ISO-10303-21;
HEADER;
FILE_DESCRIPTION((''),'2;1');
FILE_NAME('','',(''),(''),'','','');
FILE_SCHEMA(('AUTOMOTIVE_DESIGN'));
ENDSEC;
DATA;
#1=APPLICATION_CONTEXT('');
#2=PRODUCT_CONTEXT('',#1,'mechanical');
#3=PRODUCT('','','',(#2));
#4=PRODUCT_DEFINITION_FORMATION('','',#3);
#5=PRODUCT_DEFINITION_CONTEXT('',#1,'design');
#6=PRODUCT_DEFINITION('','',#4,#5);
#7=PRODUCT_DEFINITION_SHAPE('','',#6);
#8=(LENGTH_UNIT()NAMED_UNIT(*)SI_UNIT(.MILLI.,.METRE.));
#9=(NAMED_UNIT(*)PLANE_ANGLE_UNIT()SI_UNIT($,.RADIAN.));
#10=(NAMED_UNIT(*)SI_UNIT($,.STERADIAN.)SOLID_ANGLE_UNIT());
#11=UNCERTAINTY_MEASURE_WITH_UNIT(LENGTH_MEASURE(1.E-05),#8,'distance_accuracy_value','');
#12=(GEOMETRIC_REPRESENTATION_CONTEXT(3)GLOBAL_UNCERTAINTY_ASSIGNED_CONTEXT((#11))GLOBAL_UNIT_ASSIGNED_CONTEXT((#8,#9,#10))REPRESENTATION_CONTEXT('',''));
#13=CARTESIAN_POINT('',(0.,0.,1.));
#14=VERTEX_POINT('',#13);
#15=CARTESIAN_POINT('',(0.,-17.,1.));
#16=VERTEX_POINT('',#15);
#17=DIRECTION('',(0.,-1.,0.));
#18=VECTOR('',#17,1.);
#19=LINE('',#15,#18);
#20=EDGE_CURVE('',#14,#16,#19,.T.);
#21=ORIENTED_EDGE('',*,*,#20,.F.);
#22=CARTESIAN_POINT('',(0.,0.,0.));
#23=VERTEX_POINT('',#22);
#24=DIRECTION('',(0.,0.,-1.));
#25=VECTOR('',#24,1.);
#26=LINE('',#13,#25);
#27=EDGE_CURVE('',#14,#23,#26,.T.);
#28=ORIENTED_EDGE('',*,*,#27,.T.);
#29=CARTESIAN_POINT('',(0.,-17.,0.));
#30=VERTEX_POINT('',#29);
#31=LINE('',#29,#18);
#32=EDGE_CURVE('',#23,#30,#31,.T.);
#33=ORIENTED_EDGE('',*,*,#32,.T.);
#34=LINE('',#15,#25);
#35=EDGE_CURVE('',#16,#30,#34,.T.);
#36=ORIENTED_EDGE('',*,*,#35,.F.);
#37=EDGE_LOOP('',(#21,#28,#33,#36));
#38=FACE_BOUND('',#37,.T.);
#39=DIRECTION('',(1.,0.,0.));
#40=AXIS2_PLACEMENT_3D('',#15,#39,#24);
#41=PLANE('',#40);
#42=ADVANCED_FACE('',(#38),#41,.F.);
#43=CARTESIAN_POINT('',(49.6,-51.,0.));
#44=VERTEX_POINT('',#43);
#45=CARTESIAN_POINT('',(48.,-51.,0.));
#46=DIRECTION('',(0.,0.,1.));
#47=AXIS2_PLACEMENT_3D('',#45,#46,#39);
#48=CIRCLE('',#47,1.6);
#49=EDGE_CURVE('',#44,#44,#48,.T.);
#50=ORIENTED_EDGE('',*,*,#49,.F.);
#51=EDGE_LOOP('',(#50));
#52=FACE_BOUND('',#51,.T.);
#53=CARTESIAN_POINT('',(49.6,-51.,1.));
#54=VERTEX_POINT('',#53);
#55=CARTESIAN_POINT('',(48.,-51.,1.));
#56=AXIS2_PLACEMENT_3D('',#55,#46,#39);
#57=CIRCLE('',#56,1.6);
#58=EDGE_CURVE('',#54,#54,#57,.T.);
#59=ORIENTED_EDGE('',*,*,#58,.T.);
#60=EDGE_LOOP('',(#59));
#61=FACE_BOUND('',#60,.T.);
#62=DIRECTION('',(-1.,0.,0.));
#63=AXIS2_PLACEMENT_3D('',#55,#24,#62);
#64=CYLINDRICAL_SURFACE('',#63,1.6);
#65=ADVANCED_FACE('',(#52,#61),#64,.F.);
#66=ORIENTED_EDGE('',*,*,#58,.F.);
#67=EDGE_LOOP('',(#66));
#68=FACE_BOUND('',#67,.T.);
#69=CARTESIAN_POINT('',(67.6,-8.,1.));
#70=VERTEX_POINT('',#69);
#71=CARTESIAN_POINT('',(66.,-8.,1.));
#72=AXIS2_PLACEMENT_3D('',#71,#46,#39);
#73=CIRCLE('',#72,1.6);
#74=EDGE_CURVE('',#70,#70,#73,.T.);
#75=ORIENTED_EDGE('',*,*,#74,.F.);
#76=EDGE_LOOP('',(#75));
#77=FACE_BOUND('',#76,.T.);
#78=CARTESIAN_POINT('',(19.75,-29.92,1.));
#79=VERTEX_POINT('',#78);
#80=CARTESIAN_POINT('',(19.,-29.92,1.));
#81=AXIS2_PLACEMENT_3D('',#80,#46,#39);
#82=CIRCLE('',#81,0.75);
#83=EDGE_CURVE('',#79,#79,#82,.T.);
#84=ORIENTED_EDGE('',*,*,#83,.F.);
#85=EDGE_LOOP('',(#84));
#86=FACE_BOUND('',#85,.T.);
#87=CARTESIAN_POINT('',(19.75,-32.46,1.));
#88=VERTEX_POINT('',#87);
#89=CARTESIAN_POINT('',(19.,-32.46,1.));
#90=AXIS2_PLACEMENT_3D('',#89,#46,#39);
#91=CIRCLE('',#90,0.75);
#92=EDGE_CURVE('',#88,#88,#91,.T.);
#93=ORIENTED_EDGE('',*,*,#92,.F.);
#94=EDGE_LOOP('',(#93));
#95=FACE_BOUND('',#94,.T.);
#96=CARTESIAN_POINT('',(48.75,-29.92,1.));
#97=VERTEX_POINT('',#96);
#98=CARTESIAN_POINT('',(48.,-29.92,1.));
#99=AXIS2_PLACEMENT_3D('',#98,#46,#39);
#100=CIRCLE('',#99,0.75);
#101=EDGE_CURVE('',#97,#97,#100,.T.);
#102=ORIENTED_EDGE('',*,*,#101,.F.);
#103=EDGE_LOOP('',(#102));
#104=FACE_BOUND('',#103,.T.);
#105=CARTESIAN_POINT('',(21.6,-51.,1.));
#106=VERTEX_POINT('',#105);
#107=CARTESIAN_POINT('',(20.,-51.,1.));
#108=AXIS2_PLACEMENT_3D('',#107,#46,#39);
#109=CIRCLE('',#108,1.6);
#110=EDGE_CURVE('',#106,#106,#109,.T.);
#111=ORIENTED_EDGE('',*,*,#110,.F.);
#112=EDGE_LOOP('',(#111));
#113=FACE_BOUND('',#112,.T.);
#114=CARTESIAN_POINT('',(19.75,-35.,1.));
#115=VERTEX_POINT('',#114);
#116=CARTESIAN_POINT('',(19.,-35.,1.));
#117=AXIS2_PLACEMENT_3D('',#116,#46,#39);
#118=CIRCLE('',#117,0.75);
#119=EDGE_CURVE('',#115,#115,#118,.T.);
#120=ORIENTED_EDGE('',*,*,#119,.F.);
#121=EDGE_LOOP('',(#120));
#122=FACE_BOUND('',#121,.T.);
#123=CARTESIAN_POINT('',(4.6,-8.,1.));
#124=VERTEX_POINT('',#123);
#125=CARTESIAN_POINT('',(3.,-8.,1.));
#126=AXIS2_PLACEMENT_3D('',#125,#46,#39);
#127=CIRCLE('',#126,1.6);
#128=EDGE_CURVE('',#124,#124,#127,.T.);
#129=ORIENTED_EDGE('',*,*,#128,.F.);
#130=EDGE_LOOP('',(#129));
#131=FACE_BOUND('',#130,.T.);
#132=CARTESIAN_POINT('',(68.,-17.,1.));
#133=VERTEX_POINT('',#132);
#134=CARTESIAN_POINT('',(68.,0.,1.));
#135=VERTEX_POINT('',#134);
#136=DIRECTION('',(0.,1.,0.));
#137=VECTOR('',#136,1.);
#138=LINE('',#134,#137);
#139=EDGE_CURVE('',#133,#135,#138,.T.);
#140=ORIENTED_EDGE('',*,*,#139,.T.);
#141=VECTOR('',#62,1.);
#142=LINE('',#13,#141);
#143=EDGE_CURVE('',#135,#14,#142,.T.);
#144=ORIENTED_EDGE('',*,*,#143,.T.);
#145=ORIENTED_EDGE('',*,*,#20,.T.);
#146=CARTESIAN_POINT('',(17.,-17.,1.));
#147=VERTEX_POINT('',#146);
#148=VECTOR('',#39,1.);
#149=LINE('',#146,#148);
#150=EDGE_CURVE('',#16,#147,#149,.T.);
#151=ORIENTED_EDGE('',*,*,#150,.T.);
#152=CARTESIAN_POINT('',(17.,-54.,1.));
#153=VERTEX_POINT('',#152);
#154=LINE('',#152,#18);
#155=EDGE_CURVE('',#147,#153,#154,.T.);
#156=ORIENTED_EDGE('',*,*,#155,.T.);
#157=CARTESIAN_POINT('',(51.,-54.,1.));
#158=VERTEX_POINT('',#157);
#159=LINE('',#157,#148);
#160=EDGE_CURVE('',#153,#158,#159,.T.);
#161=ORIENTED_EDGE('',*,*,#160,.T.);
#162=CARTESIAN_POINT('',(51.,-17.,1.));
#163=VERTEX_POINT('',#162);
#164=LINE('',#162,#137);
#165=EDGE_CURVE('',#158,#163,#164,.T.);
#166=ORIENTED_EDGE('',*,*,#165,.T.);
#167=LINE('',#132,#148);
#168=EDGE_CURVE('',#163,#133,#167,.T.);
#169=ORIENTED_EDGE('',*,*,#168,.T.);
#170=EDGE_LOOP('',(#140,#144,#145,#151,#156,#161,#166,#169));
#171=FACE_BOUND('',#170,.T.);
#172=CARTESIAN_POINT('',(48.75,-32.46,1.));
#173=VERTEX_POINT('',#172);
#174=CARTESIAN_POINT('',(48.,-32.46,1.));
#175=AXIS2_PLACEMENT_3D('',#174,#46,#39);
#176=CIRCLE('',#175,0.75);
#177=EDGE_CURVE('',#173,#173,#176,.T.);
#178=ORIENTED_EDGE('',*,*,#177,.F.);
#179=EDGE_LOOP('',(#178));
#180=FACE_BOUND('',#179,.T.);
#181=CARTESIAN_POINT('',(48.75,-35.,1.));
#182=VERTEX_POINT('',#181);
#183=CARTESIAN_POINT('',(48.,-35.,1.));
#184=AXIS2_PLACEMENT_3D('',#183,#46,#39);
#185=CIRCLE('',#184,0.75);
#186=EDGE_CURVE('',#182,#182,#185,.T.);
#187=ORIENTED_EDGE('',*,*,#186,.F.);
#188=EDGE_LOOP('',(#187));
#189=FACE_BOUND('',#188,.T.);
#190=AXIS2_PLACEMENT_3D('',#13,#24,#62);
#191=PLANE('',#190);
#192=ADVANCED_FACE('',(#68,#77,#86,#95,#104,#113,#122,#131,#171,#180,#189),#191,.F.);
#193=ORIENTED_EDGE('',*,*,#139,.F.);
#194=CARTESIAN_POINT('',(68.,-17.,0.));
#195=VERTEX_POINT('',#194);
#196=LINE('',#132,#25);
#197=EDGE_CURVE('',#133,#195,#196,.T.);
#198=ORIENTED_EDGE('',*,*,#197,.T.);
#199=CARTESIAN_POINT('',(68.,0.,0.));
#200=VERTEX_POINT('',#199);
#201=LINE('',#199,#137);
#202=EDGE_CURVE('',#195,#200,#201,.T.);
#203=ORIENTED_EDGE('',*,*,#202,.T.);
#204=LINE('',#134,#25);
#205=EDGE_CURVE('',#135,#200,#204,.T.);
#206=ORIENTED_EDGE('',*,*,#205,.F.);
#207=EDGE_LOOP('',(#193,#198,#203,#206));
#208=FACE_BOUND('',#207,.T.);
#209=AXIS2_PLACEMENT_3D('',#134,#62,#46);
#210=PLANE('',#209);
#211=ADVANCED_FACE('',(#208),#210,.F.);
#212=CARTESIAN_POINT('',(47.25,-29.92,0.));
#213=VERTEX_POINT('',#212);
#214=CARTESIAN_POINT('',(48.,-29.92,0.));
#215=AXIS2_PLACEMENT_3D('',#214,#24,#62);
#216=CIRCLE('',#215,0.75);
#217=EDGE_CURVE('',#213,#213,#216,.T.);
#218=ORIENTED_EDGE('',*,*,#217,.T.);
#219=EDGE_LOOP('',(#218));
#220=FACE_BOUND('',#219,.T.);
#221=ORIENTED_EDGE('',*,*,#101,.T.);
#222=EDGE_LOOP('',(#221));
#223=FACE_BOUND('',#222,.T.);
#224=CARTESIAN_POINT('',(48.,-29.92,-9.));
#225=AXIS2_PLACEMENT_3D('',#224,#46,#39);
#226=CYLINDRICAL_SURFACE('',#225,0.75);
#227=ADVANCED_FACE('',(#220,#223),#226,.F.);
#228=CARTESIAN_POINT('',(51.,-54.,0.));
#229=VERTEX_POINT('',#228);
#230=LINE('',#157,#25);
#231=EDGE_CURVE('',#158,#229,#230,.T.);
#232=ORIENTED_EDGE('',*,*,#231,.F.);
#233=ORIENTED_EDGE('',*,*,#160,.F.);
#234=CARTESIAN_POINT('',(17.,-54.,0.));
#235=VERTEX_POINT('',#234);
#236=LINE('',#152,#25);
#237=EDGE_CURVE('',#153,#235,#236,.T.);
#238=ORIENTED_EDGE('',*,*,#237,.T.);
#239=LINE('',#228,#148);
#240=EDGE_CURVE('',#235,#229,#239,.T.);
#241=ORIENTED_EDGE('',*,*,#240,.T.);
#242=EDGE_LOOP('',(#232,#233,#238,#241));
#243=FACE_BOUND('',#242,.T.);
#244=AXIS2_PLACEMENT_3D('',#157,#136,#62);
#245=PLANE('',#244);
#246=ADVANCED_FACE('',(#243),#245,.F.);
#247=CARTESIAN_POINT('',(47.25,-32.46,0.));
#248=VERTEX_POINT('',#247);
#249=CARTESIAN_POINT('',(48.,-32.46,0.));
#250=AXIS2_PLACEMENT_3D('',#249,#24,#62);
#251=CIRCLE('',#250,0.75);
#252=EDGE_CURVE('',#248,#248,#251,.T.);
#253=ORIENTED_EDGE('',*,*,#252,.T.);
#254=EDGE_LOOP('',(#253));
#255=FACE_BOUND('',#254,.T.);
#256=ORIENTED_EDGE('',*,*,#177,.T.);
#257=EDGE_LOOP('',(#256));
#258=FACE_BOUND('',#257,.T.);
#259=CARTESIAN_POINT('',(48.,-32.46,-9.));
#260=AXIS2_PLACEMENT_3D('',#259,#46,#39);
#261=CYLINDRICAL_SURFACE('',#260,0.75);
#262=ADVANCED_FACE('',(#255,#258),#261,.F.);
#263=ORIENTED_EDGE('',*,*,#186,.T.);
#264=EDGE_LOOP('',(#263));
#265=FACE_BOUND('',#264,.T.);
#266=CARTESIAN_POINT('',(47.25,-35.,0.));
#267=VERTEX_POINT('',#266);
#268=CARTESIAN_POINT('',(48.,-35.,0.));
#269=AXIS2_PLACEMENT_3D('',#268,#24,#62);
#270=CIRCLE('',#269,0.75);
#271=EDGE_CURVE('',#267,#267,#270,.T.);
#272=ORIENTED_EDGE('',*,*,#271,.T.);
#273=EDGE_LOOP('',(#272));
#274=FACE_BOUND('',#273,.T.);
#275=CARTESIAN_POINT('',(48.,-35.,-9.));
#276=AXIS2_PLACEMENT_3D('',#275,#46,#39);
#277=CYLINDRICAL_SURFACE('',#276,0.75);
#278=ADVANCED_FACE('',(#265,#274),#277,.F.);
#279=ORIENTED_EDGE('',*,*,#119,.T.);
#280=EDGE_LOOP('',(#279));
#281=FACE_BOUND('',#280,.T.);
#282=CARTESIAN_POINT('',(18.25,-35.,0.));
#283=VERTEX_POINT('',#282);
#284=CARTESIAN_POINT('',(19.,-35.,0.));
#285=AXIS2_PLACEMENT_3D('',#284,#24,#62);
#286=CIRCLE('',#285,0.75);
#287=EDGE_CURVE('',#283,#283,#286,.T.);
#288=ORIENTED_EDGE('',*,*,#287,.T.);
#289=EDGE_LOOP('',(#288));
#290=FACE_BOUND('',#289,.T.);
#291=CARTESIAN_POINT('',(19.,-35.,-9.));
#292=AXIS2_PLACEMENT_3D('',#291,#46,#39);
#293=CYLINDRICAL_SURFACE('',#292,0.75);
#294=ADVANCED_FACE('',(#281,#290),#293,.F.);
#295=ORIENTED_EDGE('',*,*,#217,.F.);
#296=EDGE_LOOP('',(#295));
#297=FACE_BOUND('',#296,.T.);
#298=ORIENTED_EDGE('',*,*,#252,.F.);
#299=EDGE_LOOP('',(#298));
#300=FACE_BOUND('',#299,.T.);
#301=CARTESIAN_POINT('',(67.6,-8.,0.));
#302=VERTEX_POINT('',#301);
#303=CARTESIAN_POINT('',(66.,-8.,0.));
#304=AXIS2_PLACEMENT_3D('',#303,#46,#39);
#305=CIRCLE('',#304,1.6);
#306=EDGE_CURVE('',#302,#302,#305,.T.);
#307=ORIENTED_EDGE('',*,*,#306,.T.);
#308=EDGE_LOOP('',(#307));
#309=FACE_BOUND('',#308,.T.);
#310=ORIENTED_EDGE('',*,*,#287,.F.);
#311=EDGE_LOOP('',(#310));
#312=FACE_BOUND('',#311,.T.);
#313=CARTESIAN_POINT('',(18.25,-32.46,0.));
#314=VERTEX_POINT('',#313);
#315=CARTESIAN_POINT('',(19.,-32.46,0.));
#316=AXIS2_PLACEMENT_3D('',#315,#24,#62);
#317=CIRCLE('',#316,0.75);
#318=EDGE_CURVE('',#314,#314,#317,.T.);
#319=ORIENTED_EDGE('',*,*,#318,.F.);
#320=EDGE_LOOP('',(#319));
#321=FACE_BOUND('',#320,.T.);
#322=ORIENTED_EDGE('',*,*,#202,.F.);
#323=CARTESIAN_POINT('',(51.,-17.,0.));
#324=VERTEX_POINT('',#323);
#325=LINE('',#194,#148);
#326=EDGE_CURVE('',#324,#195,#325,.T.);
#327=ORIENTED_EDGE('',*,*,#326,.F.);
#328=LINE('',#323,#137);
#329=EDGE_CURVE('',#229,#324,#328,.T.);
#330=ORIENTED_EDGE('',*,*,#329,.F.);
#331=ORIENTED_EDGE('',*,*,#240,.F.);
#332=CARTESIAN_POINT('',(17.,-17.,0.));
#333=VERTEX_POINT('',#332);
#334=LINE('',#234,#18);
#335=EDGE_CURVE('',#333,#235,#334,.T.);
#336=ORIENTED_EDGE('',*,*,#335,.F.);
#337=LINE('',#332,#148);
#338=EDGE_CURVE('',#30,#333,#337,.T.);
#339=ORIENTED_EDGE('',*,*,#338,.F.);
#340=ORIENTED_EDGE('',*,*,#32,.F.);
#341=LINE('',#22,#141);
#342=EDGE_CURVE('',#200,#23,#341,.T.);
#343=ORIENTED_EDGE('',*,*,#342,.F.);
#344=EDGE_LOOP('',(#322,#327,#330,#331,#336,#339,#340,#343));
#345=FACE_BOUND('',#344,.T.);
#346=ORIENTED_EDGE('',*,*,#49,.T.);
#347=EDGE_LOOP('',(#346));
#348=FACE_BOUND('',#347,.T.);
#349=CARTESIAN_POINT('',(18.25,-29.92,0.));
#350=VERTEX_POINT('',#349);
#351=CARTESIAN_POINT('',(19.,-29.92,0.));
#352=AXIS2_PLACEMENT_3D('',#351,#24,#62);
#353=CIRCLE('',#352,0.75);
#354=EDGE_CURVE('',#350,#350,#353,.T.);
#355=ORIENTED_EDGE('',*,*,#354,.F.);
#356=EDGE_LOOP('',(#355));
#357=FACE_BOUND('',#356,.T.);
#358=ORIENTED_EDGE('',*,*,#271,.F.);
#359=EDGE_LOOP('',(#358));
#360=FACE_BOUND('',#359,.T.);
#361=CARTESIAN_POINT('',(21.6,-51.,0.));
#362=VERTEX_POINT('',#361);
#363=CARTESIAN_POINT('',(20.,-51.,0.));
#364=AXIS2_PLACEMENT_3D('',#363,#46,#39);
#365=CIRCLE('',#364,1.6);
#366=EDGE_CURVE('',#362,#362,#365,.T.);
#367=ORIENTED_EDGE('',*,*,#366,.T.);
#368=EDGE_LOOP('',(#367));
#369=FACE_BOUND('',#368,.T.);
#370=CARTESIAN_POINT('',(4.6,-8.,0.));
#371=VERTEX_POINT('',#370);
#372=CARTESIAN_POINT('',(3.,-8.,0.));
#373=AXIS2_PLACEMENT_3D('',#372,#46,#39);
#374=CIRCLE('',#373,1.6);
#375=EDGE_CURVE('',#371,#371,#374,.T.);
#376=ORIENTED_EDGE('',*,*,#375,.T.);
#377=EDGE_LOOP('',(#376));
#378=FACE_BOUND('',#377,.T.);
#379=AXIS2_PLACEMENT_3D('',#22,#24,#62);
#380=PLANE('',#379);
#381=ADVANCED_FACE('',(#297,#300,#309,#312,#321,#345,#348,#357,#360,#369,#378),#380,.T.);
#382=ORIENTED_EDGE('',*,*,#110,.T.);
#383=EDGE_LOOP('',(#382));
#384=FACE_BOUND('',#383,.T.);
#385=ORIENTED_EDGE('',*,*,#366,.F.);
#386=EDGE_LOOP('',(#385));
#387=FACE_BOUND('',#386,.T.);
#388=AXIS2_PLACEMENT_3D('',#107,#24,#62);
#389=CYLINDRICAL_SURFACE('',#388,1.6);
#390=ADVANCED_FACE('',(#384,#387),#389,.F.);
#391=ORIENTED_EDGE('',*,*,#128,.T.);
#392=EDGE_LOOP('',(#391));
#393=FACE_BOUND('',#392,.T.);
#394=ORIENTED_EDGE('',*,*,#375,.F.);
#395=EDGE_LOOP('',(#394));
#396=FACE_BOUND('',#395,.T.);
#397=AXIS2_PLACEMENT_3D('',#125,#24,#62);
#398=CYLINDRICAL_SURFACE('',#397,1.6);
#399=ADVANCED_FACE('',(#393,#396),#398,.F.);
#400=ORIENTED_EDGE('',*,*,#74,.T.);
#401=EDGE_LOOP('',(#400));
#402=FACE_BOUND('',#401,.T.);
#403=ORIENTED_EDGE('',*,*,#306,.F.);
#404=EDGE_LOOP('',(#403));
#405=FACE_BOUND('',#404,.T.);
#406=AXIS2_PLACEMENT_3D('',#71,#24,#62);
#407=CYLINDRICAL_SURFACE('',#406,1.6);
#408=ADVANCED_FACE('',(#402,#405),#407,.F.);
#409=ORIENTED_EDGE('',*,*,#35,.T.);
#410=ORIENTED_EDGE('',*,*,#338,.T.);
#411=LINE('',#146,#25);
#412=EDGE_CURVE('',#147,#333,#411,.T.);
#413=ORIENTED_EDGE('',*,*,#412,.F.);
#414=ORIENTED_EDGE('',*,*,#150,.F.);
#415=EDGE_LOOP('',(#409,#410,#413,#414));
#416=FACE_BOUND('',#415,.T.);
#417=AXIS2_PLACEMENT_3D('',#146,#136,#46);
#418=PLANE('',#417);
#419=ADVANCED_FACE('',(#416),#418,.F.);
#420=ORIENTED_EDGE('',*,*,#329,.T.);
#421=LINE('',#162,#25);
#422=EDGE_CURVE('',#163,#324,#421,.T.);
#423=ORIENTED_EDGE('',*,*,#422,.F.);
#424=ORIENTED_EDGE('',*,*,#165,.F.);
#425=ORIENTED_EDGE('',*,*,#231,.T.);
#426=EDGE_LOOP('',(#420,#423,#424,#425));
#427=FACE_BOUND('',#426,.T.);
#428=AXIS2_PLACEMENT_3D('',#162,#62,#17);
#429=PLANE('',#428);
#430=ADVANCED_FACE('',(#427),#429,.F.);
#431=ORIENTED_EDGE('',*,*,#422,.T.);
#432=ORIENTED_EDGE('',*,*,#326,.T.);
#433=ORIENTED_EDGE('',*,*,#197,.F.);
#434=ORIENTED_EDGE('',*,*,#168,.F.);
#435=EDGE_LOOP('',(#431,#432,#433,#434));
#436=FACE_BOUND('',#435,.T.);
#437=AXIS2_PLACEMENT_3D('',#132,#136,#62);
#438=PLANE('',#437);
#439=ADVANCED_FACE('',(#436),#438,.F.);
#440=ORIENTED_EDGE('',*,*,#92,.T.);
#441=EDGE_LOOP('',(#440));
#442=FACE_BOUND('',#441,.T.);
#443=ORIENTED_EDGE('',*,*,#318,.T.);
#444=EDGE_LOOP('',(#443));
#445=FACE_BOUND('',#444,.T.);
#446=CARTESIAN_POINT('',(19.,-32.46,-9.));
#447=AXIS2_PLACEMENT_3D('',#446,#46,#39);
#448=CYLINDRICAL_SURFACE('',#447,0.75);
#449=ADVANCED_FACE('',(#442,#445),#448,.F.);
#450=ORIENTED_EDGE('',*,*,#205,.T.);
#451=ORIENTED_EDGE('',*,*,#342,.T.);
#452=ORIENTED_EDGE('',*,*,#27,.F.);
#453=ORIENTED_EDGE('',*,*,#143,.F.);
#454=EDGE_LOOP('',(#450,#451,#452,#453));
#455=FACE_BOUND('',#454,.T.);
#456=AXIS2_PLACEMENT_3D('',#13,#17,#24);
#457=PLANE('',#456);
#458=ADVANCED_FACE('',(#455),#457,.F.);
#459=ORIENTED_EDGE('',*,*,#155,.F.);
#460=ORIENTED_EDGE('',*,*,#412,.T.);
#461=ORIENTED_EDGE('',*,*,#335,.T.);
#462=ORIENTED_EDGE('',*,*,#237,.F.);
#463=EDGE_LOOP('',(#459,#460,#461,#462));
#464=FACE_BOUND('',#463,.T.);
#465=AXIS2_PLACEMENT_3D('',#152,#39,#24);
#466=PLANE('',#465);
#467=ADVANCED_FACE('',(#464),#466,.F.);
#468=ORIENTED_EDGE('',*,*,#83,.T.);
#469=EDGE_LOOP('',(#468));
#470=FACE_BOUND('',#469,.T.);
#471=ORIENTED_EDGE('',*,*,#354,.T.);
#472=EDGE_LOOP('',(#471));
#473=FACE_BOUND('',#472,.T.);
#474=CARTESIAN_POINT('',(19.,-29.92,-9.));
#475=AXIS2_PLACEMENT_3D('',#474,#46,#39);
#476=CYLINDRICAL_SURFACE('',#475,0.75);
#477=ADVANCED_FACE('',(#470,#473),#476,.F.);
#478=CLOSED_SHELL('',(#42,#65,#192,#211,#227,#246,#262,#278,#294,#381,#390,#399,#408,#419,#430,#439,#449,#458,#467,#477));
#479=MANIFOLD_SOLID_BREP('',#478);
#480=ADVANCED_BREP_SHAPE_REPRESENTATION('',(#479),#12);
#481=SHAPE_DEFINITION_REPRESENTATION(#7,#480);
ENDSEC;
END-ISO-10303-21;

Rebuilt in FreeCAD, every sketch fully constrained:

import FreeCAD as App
import Part
import Sketcher
from FreeCAD import Vector
Q = App.Units.Quantity


def add_polygon(sketch, points):
    """Adds a closed chain of lines whose ends are joined by coincident constraints."""
    first, n = sketch.GeometryCount, len(points)
    for a, b in zip(points, points[1:] + points[:1]):
        sketch.addGeometry(Part.LineSegment(App.Vector(*a, 0), App.Vector(*b, 0)), False)
    for i in range(n):
        sketch.addConstraint(Sketcher.Constraint("Coincident", first + i, 2, first + (i + 1) % n, 1))

doc = App.newDocument("Part")
body = doc.addObject("PartDesign::Body", "Body")

# Sketch on XY plane
sketch1 = doc.addObject("Sketcher::SketchObject", "Sketch")
body.addObject(sketch1)
sketch1.AttachmentSupport = (doc.XY_Plane, [""])
sketch1.MapMode = "FlatFace"
add_polygon(sketch1, [(68, 0), (0, 0), (0, -17), (17, -17), (17, -54), (51, -54), (51, -17), (68, -17)])  # lines 0-7
sketch1.addGeometry(Part.Circle(Vector(48, -51, 0), Vector(0, 0, 1), 1.6), False)  # 8
sketch1.addGeometry(Part.Circle(Vector(20, -51, 0), Vector(0, 0, 1), 1.6), False)  # 9
sketch1.addGeometry(Part.Circle(Vector(66, -8, 0), Vector(0, 0, 1), 1.6), False)  # 10
sketch1.addGeometry(Part.Circle(Vector(3, -8, 0), Vector(0, 0, 1), 1.6), False)  # 11
sketch1.addConstraint([
    Sketcher.Constraint("Horizontal", 0),
    Sketcher.Constraint("Vertical", 1),
    Sketcher.Constraint("Horizontal", 2),
    Sketcher.Constraint("Vertical", 3),
    Sketcher.Constraint("Horizontal", 4),
    Sketcher.Constraint("Vertical", 5),
    Sketcher.Constraint("Horizontal", 6),
    Sketcher.Constraint("Vertical", 7),
    Sketcher.Constraint("Coincident", 0, 2, -1, 1),
    Sketcher.Constraint("Equal", 8, 9),
    Sketcher.Constraint("Equal", 9, 10),
    Sketcher.Constraint("Equal", 10, 11),
    Sketcher.Constraint("Horizontal", 8, 3, 9, 3),
    Sketcher.Constraint("Horizontal", 10, 3, 11, 3),
    Sketcher.Constraint("Horizontal", 2, 2, 5, 2),
    Sketcher.Constraint("Equal", 2, 6),
    Sketcher.Constraint("Equal", 6, 1),
    Sketcher.Constraint("Diameter", 8, Q("3.2 mm")),
    Sketcher.Constraint("DistanceX", 0, 2, 0, 1, Q("68 mm")),
    Sketcher.Constraint("DistanceX", 2, 1, 2, 2, Q("17 mm")),
    Sketcher.Constraint("DistanceY", 3, 2, 3, 1, Q("37 mm")),
    Sketcher.Constraint("DistanceX", -1, 1, 8, 3, Q("48 mm")),
    Sketcher.Constraint("DistanceY", 8, 3, -1, 1, Q("51 mm")),
    Sketcher.Constraint("DistanceX", -1, 1, 9, 3, Q("20 mm")),
    Sketcher.Constraint("DistanceX", -1, 1, 10, 3, Q("66 mm")),
    Sketcher.Constraint("DistanceY", 10, 3, -1, 1, Q("8 mm")),
    Sketcher.Constraint("DistanceX", -1, 1, 11, 3, Q("3 mm")),
])
pad1 = doc.addObject("PartDesign::Pad", "Pad")
body.addObject(pad1)
pad1.Profile = sketch1
pad1.Length = 1

# Sketch on XY plane
sketch2 = doc.addObject("Sketcher::SketchObject", "Sketch001")
body.addObject(sketch2)
sketch2.AttachmentSupport = (doc.XY_Plane, [""])
sketch2.MapMode = "FlatFace"
sketch2.AttachmentOffset = App.Placement(Vector(0, 0, 1), App.Rotation())
sketch2.addGeometry([
    Part.Circle(Vector(19, -35, 0), Vector(0, 0, 1), 0.8),  # 0
    Part.Circle(Vector(19, -32.5, 0), Vector(0, 0, 1), 0.8),  # 1
    Part.Circle(Vector(19, -29.9, 0), Vector(0, 0, 1), 0.8),  # 2
    Part.Circle(Vector(48, -29.9, 0), Vector(0, 0, 1), 0.8),  # 3
    Part.Circle(Vector(48, -32.5, 0), Vector(0, 0, 1), 0.8),  # 4
    Part.Circle(Vector(48, -35, 0), Vector(0, 0, 1), 0.8),  # 5
], False)
sketch2.addConstraint([
    Sketcher.Constraint("Equal", 0, 1),
    Sketcher.Constraint("Equal", 1, 2),
    Sketcher.Constraint("Equal", 2, 3),
    Sketcher.Constraint("Equal", 3, 4),
    Sketcher.Constraint("Equal", 4, 5),
    Sketcher.Constraint("Horizontal", 2, 3, 3, 3),
    Sketcher.Constraint("Horizontal", 1, 3, 4, 3),
    Sketcher.Constraint("Horizontal", 0, 3, 5, 3),
    Sketcher.Constraint("Vertical", 0, 3, 1, 3),
    Sketcher.Constraint("Vertical", 1, 3, 2, 3),
    Sketcher.Constraint("Vertical", 3, 3, 4, 3),
    Sketcher.Constraint("Vertical", 4, 3, 5, 3),
    Sketcher.Constraint("Diameter", 0, Q("1.5 mm")),
    Sketcher.Constraint("DistanceX", -1, 1, 0, 3, Q("19 mm")),
    Sketcher.Constraint("DistanceY", 0, 3, -1, 1, Q("35 mm")),
    Sketcher.Constraint("DistanceX", -1, 1, 3, 3, Q("48 mm")),
    Sketcher.Constraint("DistanceY", 1, 3, -1, 1, Q("32.46 mm")),
    Sketcher.Constraint("DistanceY", 2, 3, -1, 1, Q("29.92 mm")),
])
pocket1 = doc.addObject("PartDesign::Pocket", "Pocket")
body.addObject(pocket1)
pocket1.Profile = sketch2
pocket1.Length = 10

doc.recompute()
